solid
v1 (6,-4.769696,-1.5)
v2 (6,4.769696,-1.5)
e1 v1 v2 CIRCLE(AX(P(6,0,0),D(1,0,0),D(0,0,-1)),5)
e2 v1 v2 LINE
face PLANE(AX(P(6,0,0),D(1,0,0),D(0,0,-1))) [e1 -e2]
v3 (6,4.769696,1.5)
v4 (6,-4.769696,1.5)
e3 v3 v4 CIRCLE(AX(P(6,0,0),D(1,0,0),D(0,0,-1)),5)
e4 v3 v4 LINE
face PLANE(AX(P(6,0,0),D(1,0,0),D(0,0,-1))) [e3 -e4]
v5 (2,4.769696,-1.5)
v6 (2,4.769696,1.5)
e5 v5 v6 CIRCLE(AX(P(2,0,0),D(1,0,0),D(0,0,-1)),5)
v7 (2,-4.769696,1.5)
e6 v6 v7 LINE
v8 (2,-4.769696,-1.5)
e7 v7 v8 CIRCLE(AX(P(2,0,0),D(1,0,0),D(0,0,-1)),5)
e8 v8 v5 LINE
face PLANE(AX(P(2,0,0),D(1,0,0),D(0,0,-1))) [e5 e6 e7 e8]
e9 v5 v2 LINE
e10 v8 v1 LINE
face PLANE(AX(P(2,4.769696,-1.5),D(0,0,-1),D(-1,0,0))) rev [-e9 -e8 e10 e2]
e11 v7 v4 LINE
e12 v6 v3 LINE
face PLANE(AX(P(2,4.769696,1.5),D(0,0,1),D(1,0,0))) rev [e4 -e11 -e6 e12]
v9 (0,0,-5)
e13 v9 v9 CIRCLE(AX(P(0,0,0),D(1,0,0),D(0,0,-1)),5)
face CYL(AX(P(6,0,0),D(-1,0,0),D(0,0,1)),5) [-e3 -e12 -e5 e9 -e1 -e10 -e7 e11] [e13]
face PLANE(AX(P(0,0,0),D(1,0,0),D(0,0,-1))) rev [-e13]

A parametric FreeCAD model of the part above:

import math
import FreeCAD as App
import Part
import Sketcher

V = App.Vector

doc = App.newDocument("Part")
body = doc.addObject("PartDesign::Body", "Body")

# Sketch on YZ plane
sketch1 = doc.addObject("Sketcher::SketchObject", "Sketch")
body.addObject(sketch1)
sketch1.AttachmentSupport = (doc.YZ_Plane, [""])
sketch1.MapMode = "FlatFace"
sketch1.addGeometry(Part.Circle(V(0, 0, 0), V(0, 0, 1), 5), False)
sketch1.addConstraint([
    Sketcher.Constraint("Coincident", 0, 3, -1, 1),
    Sketcher.Constraint("Diameter", 0, 10.0),
])
pad1 = doc.addObject("PartDesign::Pad", "Pad")
body.addObject(pad1)
pad1.Profile = sketch1
pad1.Length = 6

# Sketch on YZ plane
sketch2 = doc.addObject("Sketcher::SketchObject", "Sketch001")
body.addObject(sketch2)
sketch2.AttachmentSupport = (doc.YZ_Plane, [""])
sketch2.MapMode = "FlatFace"
sketch2.AttachmentOffset = App.Placement(V(0, 0, 2), App.Rotation())
sketch2.addGeometry([
    Part.LineSegment(V(4.8, 1.5, 0), V(-4.8, 1.5, 0)),
    Part.ArcOfCircle(Part.Circle(V(0, 0, 0), V(0, 0, 1), 5), math.radians(163), math.radians(197)),
    Part.LineSegment(V(-4.8, -1.5, 0), V(4.8, -1.5, 0)),
    Part.ArcOfCircle(Part.Circle(V(0, 0, 0), V(0, 0, 1), 5), math.radians(-17), math.radians(17)),
], False)
sketch2.addConstraint([
    Sketcher.Constraint("Coincident", 0, 2, 1, 1),
    Sketcher.Constraint("Coincident", 1, 2, 2, 1),
    Sketcher.Constraint("Coincident", 2, 2, 3, 1),
    Sketcher.Constraint("Coincident", 3, 2, 0, 1),
    Sketcher.Constraint("Horizontal", 0),
    Sketcher.Constraint("Horizontal", 2),
    Sketcher.Constraint("Coincident", 1, 3, -1, 1),
    Sketcher.Constraint("Coincident", 3, 3, -1, 1),
    Sketcher.Constraint("Equal", 1, 3),
    Sketcher.Constraint("Vertical", 0, 2, 1, 2),
    Sketcher.Constraint("Radius", 1, 5.0),
    Sketcher.Constraint("DistanceY", 1, 2, 0, 2, 3.0),
])
pocket1 = doc.addObject("PartDesign::Pocket", "Pocket")
body.addObject(pocket1)
pocket1.Profile = sketch2
pocket1.Length = 4
pocket1.Reversed = True

doc.recompute()
